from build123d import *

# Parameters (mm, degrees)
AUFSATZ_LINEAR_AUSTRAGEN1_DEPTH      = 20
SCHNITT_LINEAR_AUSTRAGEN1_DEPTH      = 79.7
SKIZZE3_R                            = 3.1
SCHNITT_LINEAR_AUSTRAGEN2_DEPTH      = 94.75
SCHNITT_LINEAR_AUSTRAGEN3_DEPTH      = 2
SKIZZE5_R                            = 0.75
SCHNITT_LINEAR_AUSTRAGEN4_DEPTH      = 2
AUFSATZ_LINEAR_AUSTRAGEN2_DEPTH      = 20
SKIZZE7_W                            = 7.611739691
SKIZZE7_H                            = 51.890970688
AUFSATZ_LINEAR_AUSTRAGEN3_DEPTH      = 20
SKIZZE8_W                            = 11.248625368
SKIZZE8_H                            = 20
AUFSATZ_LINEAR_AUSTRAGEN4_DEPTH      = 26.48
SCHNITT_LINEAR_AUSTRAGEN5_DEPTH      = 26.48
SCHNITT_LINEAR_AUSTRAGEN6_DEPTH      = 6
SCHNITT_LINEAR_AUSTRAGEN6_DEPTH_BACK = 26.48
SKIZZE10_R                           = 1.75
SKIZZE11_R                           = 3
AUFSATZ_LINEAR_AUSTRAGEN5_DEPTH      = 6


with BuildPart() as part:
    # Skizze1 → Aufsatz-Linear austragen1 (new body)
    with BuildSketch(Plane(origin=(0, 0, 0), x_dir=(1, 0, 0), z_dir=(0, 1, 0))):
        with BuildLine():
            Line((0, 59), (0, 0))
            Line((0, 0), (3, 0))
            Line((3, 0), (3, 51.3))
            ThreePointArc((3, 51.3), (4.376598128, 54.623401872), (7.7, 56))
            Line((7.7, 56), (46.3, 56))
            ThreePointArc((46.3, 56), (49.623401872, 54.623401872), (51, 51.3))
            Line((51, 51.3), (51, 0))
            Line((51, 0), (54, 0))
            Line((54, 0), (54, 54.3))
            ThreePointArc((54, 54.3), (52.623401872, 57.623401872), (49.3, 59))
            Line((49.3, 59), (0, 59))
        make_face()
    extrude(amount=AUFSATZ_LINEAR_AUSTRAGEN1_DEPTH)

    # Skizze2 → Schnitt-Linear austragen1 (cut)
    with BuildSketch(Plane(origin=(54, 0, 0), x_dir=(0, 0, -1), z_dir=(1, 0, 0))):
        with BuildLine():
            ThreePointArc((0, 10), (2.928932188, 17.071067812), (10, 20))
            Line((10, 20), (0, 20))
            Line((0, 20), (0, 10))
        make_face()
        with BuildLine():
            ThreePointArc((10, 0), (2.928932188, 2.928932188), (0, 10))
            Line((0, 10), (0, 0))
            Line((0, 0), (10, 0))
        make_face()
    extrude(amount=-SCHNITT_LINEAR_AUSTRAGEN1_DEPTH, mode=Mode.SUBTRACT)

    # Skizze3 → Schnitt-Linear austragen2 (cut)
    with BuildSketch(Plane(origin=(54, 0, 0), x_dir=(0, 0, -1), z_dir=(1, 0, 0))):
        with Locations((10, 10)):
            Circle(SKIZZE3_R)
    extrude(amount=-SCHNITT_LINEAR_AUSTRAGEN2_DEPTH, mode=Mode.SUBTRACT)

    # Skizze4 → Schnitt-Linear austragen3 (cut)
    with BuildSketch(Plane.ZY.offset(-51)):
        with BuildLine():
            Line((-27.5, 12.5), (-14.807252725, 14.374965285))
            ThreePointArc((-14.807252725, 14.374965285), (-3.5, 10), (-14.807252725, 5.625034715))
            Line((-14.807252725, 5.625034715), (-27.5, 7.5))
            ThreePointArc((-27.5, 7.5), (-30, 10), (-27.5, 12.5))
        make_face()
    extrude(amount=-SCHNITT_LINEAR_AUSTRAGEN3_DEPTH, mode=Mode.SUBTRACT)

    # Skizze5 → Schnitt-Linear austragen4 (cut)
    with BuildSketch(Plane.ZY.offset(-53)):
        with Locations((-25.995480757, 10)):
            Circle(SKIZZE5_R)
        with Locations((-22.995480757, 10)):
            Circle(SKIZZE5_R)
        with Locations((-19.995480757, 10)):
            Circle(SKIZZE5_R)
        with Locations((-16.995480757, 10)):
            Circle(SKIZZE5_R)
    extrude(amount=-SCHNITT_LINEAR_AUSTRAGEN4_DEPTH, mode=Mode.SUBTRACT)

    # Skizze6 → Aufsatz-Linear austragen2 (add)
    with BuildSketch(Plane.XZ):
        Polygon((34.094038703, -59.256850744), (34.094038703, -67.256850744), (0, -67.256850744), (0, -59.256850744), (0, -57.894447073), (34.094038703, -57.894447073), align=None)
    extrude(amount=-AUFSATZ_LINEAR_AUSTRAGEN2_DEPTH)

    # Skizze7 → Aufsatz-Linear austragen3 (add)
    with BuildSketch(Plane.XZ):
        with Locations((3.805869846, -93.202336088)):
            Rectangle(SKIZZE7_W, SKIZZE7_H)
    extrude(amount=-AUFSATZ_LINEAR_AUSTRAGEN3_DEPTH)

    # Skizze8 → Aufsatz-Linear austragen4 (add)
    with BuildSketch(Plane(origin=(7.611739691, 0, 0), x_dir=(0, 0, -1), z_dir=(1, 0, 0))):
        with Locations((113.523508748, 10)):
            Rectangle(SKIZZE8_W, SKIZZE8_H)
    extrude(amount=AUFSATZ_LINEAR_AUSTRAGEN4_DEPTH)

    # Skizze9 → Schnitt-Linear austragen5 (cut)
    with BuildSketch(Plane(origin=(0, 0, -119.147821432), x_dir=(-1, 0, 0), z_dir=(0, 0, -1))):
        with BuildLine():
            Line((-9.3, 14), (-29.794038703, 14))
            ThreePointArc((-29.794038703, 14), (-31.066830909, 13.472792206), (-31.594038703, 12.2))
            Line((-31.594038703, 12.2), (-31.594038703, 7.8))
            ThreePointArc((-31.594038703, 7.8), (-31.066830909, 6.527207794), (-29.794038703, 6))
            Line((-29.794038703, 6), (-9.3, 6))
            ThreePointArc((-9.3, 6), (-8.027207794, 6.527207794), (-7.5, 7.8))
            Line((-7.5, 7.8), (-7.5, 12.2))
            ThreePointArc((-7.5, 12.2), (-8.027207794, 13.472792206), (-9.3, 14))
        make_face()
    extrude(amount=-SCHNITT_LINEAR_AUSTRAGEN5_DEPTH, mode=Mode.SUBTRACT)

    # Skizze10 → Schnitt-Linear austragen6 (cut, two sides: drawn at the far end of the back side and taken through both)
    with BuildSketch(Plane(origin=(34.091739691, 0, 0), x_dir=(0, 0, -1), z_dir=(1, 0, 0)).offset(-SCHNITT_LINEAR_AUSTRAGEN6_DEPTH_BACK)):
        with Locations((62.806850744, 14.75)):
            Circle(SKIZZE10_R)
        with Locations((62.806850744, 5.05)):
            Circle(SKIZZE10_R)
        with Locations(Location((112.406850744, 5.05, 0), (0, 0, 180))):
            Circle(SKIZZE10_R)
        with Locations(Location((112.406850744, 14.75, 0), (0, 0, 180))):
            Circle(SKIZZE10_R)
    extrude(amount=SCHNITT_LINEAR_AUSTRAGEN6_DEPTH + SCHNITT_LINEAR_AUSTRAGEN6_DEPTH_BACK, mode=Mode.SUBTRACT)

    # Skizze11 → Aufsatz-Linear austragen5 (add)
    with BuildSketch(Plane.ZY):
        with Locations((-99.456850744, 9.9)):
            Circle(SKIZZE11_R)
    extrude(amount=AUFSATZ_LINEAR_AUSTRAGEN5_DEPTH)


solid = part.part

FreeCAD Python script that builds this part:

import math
import FreeCAD as App
import Part
import Sketcher

V = App.Vector
Q = App.Units.Quantity


def add_polygon(sketch, points):
    """Adds a closed chain of lines whose ends are joined by coincident constraints."""
    first, n = sketch.GeometryCount, len(points)
    for a, b in zip(points, points[1:] + points[:1]):
        sketch.addGeometry(Part.LineSegment(App.Vector(*a, 0), App.Vector(*b, 0)), False)
    for i in range(n):
        sketch.addConstraint(Sketcher.Constraint("Coincident", first + i, 2, first + (i + 1) % n, 1))

doc = App.newDocument("Part")
body = doc.addObject("PartDesign::Body", "Body")

# Sketch on XZ plane
sketch1 = body.newObject("Sketcher::SketchObject", "Sketch")
sketch1.AttachmentSupport = (doc.getObject("XZ_Plane"), [""])
sketch1.MapMode = "FlatFace"
sketch1.addGeometry(Part.LineSegment(V(0, -59, 0), V(0, 0, 0)), False)
sketch1.addGeometry(Part.LineSegment(V(0, 0, 0), V(3, 0, 0)), False)
sketch1.addGeometry(Part.LineSegment(V(3, 0, 0), V(3, -51.3, 0)), False)
sketch1.addGeometry(Part.ArcOfCircle(Part.Circle(V(7.7, -51.3, 0), V(0, 0, 1), 4.7), math.radians(180), math.radians(270)), False)
sketch1.addGeometry(Part.LineSegment(V(7.7, -56, 0), V(46.3, -56, 0)), False)
sketch1.addGeometry(Part.ArcOfCircle(Part.Circle(V(46.3, -51.3, 0), V(0, 0, 1), 4.7), math.radians(-90), math.radians(0)), False)
sketch1.addGeometry(Part.LineSegment(V(51, -51.3, 0), V(51, 0, 0)), False)
sketch1.addGeometry(Part.LineSegment(V(51, 0, 0), V(54, 0, 0)), False)
sketch1.addGeometry(Part.LineSegment(V(54, 0, 0), V(54, -54.3, 0)), False)
sketch1.addGeometry(Part.ArcOfCircle(Part.Circle(V(49.3, -54.3, 0), V(0, 0, 1), 4.7), math.radians(-90), math.radians(0)), False)
sketch1.addGeometry(Part.LineSegment(V(49.3, -59, 0), V(0, -59, 0)), False)
sketch1.addConstraint(Sketcher.Constraint("Coincident", 0, 2, 1, 1))
sketch1.addConstraint(Sketcher.Constraint("Coincident", 1, 2, 2, 1))
sketch1.addConstraint(Sketcher.Constraint("Tangent", 2, 2, 3, 1))
sketch1.addConstraint(Sketcher.Constraint("Tangent", 3, 2, 4, 1))
sketch1.addConstraint(Sketcher.Constraint("Tangent", 4, 2, 5, 1))
sketch1.addConstraint(Sketcher.Constraint("Tangent", 5, 2, 6, 1))
sketch1.addConstraint(Sketcher.Constraint("Coincident", 6, 2, 7, 1))
sketch1.addConstraint(Sketcher.Constraint("Coincident", 7, 2, 8, 1))
sketch1.addConstraint(Sketcher.Constraint("Tangent", 8, 2, 9, 2))
sketch1.addConstraint(Sketcher.Constraint("Tangent", 9, 1, 10, 1))
sketch1.addConstraint(Sketcher.Constraint("Coincident", 10, 2, 0, 1))
sketch1.addConstraint(Sketcher.Constraint("Vertical", 0))
sketch1.addConstraint(Sketcher.Constraint("Horizontal", 1))
sketch1.addConstraint(Sketcher.Constraint("Vertical", 2))
sketch1.addConstraint(Sketcher.Constraint("Horizontal", 4))
sketch1.addConstraint(Sketcher.Constraint("Vertical", 6))
sketch1.addConstraint(Sketcher.Constraint("Horizontal", 7))
sketch1.addConstraint(Sketcher.Constraint("Vertical", 8))
sketch1.addConstraint(Sketcher.Constraint("Horizontal", 10))
sketch1.addConstraint(Sketcher.Constraint("Coincident", 0, 2, -1, 1))
sketch1.addConstraint(Sketcher.Constraint("Equal", 3, 5))
sketch1.addConstraint(Sketcher.Constraint("Equal", 5, 9))
sketch1.addConstraint(Sketcher.Constraint("PointOnObject", 6, 2, -1))
sketch1.addConstraint(Sketcher.Constraint("Equal", 1, 7))
sketch1.addConstraint(Sketcher.Constraint("Radius", 3, Q("4.7 mm")))
sketch1.addConstraint(Sketcher.Constraint("DistanceX", 1, 1, 1, 2, Q("3 mm")))
sketch1.addConstraint(Sketcher.Constraint("DistanceY", 0, 1, 0, 2, Q("59 mm")))
sketch1.addConstraint(Sketcher.Constraint("DistanceX", 4, 1, 4, 2, Q("38.6 mm")))
sketch1.addConstraint(Sketcher.Constraint("DistanceY", 2, 2, 2, 1, Q("51.3 mm")))
pad1 = body.newObject("PartDesign::Pad", "Pad")
pad1.Profile = sketch1
pad1.Length = 20
pad1.Reversed = True

# Sketch on YZ plane
sketch2 = body.newObject("Sketcher::SketchObject", "Sketch001")
sketch2.AttachmentSupport = (doc.getObject("YZ_Plane"), [""])
sketch2.MapMode = "FlatFace"
sketch2.AttachmentOffset = App.Placement(V(0, 0, 54), App.Rotation())
sketch2.addGeometry(Part.ArcOfCircle(Part.Circle(V(10, -10, 0), V(0, 0, 1), 10), math.radians(0), math.radians(90)), False)
sketch2.addGeometry(Part.LineSegment(V(20, -10, 0), V(20, 0, 0)), False)
sketch2.addGeometry(Part.LineSegment(V(20, 0, 0), V(10, 0, 0)), False)
sketch2.addGeometry(Part.ArcOfCircle(Part.Circle(V(10, -10, 0), V(0, 0, 1), 10), math.radians(90), math.radians(180)), False)
sketch2.addGeometry(Part.LineSegment(V(10, 0, 0), V(0, 0, 0)), False)
sketch2.addGeometry(Part.LineSegment(V(0, 0, 0), V(0, -10, 0)), False)
sketch2.addConstraint(Sketcher.Constraint("Tangent", 0, 1, 1, 1))
sketch2.addConstraint(Sketcher.Constraint("Coincident", 1, 2, 2, 1))
sketch2.addConstraint(Sketcher.Constraint("Tangent", 2, 2, 0, 2))
sketch2.addConstraint(Sketcher.Constraint("Tangent", 3, 1, 4, 1))
sketch2.addConstraint(Sketcher.Constraint("Coincident", 4, 2, 5, 1))
sketch2.addConstraint(Sketcher.Constraint("Tangent", 5, 2, 3, 2))
sketch2.addConstraint(Sketcher.Constraint("Vertical", 1))
sketch2.addConstraint(Sketcher.Constraint("Horizontal", 2))
sketch2.addConstraint(Sketcher.Constraint("Horizontal", 4))
sketch2.addConstraint(Sketcher.Constraint("Vertical", 5))
sketch2.addConstraint(Sketcher.Constraint("Coincident", 4, 2, -1, 1))
sketch2.addConstraint(Sketcher.Constraint("Coincident", 3, 3, 0, 3))
sketch2.addConstraint(Sketcher.Constraint("Equal", 0, 3))
sketch2.addConstraint(Sketcher.Constraint("Radius", 0, Q("10 mm")))
pocket1 = body.newObject("PartDesign::Pocket", "Pocket")
pocket1.Profile = sketch2
pocket1.Length = 79.7

# Sketch on YZ plane
sketch3 = body.newObject("Sketcher::SketchObject", "Sketch002")
sketch3.AttachmentSupport = (doc.getObject("YZ_Plane"), [""])
sketch3.MapMode = "FlatFace"
sketch3.AttachmentOffset = App.Placement(V(0, 0, 54), App.Rotation())
sketch3.addGeometry(Part.Circle(V(10, -10, 0), V(0, 0, 1), 3.1), False)
sketch3.addConstraint(Sketcher.Constraint("Diameter", 0, Q("6.2 mm")))
sketch3.addConstraint(Sketcher.Constraint("DistanceX", -1, 1, 0, 3, Q("10 mm")))
sketch3.addConstraint(Sketcher.Constraint("DistanceY", 0, 3, -1, 1, Q("10 mm")))
pocket2 = body.newObject("PartDesign::Pocket", "Pocket001")
pocket2.Profile = sketch3
pocket2.Length = 94.75

# Sketch on YZ plane
sketch4 = body.newObject("Sketcher::SketchObject", "Sketch003")
sketch4.AttachmentSupport = (doc.getObject("YZ_Plane"), [""])
sketch4.MapMode = "FlatFace"
sketch4.AttachmentOffset = App.Placement(V(0, 0, 51), App.Rotation())
sketch4.addGeometry(Part.LineSegment(V(14.374965, -14.807253, 0), V(12.5, -27.5, 0)), False)
sketch4.addGeometry(Part.ArcOfCircle(Part.Circle(V(10, -27.5, 0), V(0, 0, 1), 2.5), math.radians(180), math.radians(360)), False)
sketch4.addGeometry(Part.LineSegment(V(7.5, -27.5, 0), V(5.625035, -14.807253, 0)), False)
sketch4.addGeometry(Part.ArcOfCircle(Part.Circle(V(10, -10, 0), V(0, 0, 1), 6.5), math.radians(-47.695424), math.radians(227.695424)), False)
sketch4.addConstraint(Sketcher.Constraint("Coincident", 0, 2, 1, 2))
sketch4.addConstraint(Sketcher.Constraint("Coincident", 1, 1, 2, 1))
sketch4.addConstraint(Sketcher.Constraint("Coincident", 2, 2, 3, 2))
sketch4.addConstraint(Sketcher.Constraint("Coincident", 3, 1, 0, 1))
sketch4.addConstraint(Sketcher.Constraint("Horizontal", 1, 3, 0, 2))
sketch4.addConstraint(Sketcher.Constraint("Horizontal", 0, 2, 1, 1))
sketch4.addConstraint(Sketcher.Constraint("Horizontal", 2, 2, 3, 1))
sketch4.addConstraint(Sketcher.Constraint("Vertical", 1, 3, 3, 3))
sketch4.addConstraint(Sketcher.Constraint("Radius", 1, Q("2.5 mm")))
sketch4.addConstraint(Sketcher.Constraint("Radius", 3, Q("6.5 mm")))
sketch4.addConstraint(Sketcher.Constraint("DistanceX", -1, 1, 1, 3, Q("10 mm")))
sketch4.addConstraint(Sketcher.Constraint("DistanceY", 3, 3, -1, 1, Q("10 mm")))
sketch4.addConstraint(Sketcher.Constraint("DistanceY", 1, 3, -1, 1, Q("27.5 mm")))
sketch4.addConstraint(Sketcher.Constraint("DistanceX", 2, 2, 3, 1, Q("8.749931 mm")))
pocket3 = body.newObject("PartDesign::Pocket", "Pocket002")
pocket3.Profile = sketch4
pocket3.Length = 2
pocket3.Reversed = True

# Sketch on YZ plane
sketch5 = body.newObject("Sketcher::SketchObject", "Sketch004")
sketch5.AttachmentSupport = (doc.getObject("YZ_Plane"), [""])
sketch5.MapMode = "FlatFace"
sketch5.AttachmentOffset = App.Placement(V(0, 0, 53), App.Rotation())
sketch5.addGeometry(Part.Circle(V(10, -25.995481, 0), V(0, 0, 1), 0.75), False)
sketch5.addGeometry(Part.Circle(V(10, -22.995481, 0), V(0, 0, 1), 0.75), False)
sketch5.addGeometry(Part.Circle(V(10, -19.995481, 0), V(0, 0, 1), 0.75), False)
sketch5.addGeometry(Part.Circle(V(10, -16.995481, 0), V(0, 0, 1), 0.75), False)
sketch5.addConstraint(Sketcher.Constraint("Equal", 0, 1))
sketch5.addConstraint(Sketcher.Constraint("Equal", 1, 2))
sketch5.addConstraint(Sketcher.Constraint("Equal", 2, 3))
sketch5.addConstraint(Sketcher.Constraint("Vertical", 0, 3, 1, 3))
sketch5.addConstraint(Sketcher.Constraint("Vertical", 1, 3, 2, 3))
sketch5.addConstraint(Sketcher.Constraint("Vertical", 2, 3, 3, 3))
sketch5.addConstraint(Sketcher.Constraint("Diameter", 0, Q("1.5 mm")))
sketch5.addConstraint(Sketcher.Constraint("DistanceX", -1, 1, 0, 3, Q("10 mm")))
sketch5.addConstraint(Sketcher.Constraint("DistanceY", 0, 3, 1, 3, Q("3 mm")))
sketch5.addConstraint(Sketcher.Constraint("DistanceY", 1, 3, 2, 3, Q("3 mm")))
sketch5.addConstraint(Sketcher.Constraint("DistanceY", 2, 3, 3, 3, Q("3 mm")))
sketch5.addConstraint(Sketcher.Constraint("DistanceY", 0, 3, -1, 1, Q("25.995481 mm")))
pocket4 = body.newObject("PartDesign::Pocket", "Pocket003")
pocket4.Profile = sketch5
pocket4.Length = 2
pocket4.Reversed = True

# Sketch on XZ plane
sketch6 = body.newObject("Sketcher::SketchObject", "Sketch005")
sketch6.AttachmentSupport = (doc.getObject("XZ_Plane"), [""])
sketch6.MapMode = "FlatFace"
add_polygon(sketch6, [(34.094039, -67.256851), (34.094039, -57.894447), (0, -57.894447), (0, -67.256851)])  # lines 0-3
sketch6.addConstraint(Sketcher.Constraint("Vertical", 0))
sketch6.addConstraint(Sketcher.Constraint("Horizontal", 1))
sketch6.addConstraint(Sketcher.Constraint("Vertical", 2))
sketch6.addConstraint(Sketcher.Constraint("Horizontal", 3))
sketch6.addConstraint(Sketcher.Constraint("PointOnObject", 1, 2, -2))
sketch6.addConstraint(Sketcher.Constraint("DistanceX", 1, 2, 1, 1, Q("34.094039 mm")))
sketch6.addConstraint(Sketcher.Constraint("DistanceY", 0, 1, 0, 2, Q("9.362404 mm")))
sketch6.addConstraint(Sketcher.Constraint("DistanceY", 2, 2, -1, 1, Q("67.256851 mm")))
pad2 = body.newObject("PartDesign::Pad", "Pad001")
pad2.Profile = sketch6
pad2.Length = 20
pad2.Reversed = True

# Sketch on XZ plane
sketch7 = body.newObject("Sketcher::SketchObject", "Sketch006")
sketch7.AttachmentSupport = (doc.getObject("XZ_Plane"), [""])
sketch7.MapMode = "FlatFace"
add_polygon(sketch7, [(0, -67.256851), (0, -119.147821), (7.61174, -119.147821), (7.61174, -67.256851)])  # lines 0-3
sketch7.addConstraint(Sketcher.Constraint("Vertical", 0))
sketch7.addConstraint(Sketcher.Constraint("Horizontal", 1))
sketch7.addConstraint(Sketcher.Constraint("Vertical", 2))
sketch7.addConstraint(Sketcher.Constraint("Horizontal", 3))
sketch7.addConstraint(Sketcher.Constraint("PointOnObject", 0, 2, -2))
sketch7.addConstraint(Sketcher.Constraint("DistanceX", 1, 1, 1, 2, Q("7.61174 mm")))
sketch7.addConstraint(Sketcher.Constraint("DistanceY", 0, 2, 0, 1, Q("51.890971 mm")))
sketch7.addConstraint(Sketcher.Constraint("DistanceY", 0, 2, -1, 1, Q("119.147821 mm")))
pad3 = body.newObject("PartDesign::Pad", "Pad002")
pad3.Profile = sketch7
pad3.Length = 20
pad3.Reversed = True

# Sketch on YZ plane
sketch8 = body.newObject("Sketcher::SketchObject", "Sketch007")
sketch8.AttachmentSupport = (doc.getObject("YZ_Plane"), [""])
sketch8.MapMode = "FlatFace"
sketch8.AttachmentOffset = App.Placement(V(0, 0, 7.61174), App.Rotation())
add_polygon(sketch8, [(20, -107.899196), (0, -107.899196), (0, -119.147821), (20, -119.147821)])  # lines 0-3
sketch8.addConstraint(Sketcher.Constraint("Horizontal", 0))
sketch8.addConstraint(Sketcher.Constraint("Vertical", 1))
sketch8.addConstraint(Sketcher.Constraint("Horizontal", 2))
sketch8.addConstraint(Sketcher.Constraint("Vertical", 3))
sketch8.addConstraint(Sketcher.Constraint("PointOnObject", 0, 2, -2))
sketch8.addConstraint(Sketcher.Constraint("DistanceX", 0, 2, 0, 1, Q("20 mm")))
sketch8.addConstraint(Sketcher.Constraint("DistanceY", 1, 2, 1, 1, Q("11.248625 mm")))
sketch8.addConstraint(Sketcher.Constraint("DistanceY", 1, 2, -1, 1, Q("119.147821 mm")))
pad4 = body.newObject("PartDesign::Pad", "Pad003")
pad4.Profile = sketch8
pad4.Length = 26.48

# Sketch on XY plane
sketch9 = body.newObject("Sketcher::SketchObject", "Sketch008")
sketch9.AttachmentSupport = (doc.getObject("XY_Plane"), [""])
sketch9.MapMode = "FlatFace"
sketch9.AttachmentOffset = App.Placement(V(0, 0, -119.147821), App.Rotation())
sketch9.addGeometry(Part.LineSegment(V(9.3, 14, 0), V(29.794039, 14, 0)), False)
sketch9.addGeometry(Part.ArcOfCircle(Part.Circle(V(29.794039, 12.2, 0), V(0, 0, 1), 1.8), math.radians(0), math.radians(90)), False)
sketch9.addGeometry(Part.LineSegment(V(31.594039, 12.2, 0), V(31.594039, 7.8, 0)), False)
sketch9.addGeometry(Part.ArcOfCircle(Part.Circle(V(29.794039, 7.8, 0), V(0, 0, 1), 1.8), math.radians(-90), math.radians(0)), False)
sketch9.addGeometry(Part.LineSegment(V(29.794039, 6, 0), V(9.3, 6, 0)), False)
sketch9.addGeometry(Part.ArcOfCircle(Part.Circle(V(9.3, 7.8, 0), V(0, 0, 1), 1.8), math.radians(180), math.radians(270)), False)
sketch9.addGeometry(Part.LineSegment(V(7.5, 7.8, 0), V(7.5, 12.2, 0)), False)
sketch9.addGeometry(Part.ArcOfCircle(Part.Circle(V(9.3, 12.2, 0), V(0, 0, 1), 1.8), math.radians(90), math.radians(180)), False)
sketch9.addConstraint(Sketcher.Constraint("Tangent", 0, 2, 1, 2))
sketch9.addConstraint(Sketcher.Constraint("Tangent", 1, 1, 2, 1))
sketch9.addConstraint(Sketcher.Constraint("Tangent", 2, 2, 3, 2))
sketch9.addConstraint(Sketcher.Constraint("Tangent", 3, 1, 4, 1))
sketch9.addConstraint(Sketcher.Constraint("Tangent", 4, 2, 5, 2))
sketch9.addConstraint(Sketcher.Constraint("Tangent", 5, 1, 6, 1))
sketch9.addConstraint(Sketcher.Constraint("Tangent", 6, 2, 7, 2))
sketch9.addConstraint(Sketcher.Constraint("Tangent", 7, 1, 0, 1))
sketch9.addConstraint(Sketcher.Constraint("Horizontal", 0))
sketch9.addConstraint(Sketcher.Constraint("Vertical", 2))
sketch9.addConstraint(Sketcher.Constraint("Horizontal", 4))
sketch9.addConstraint(Sketcher.Constraint("Vertical", 6))
sketch9.addConstraint(Sketcher.Constraint("Equal", 1, 3))
sketch9.addConstraint(Sketcher.Constraint("Equal", 3, 5))
sketch9.addConstraint(Sketcher.Constraint("Equal", 5, 7))
sketch9.addConstraint(Sketcher.Constraint("Radius", 1, Q("1.8 mm")))
sketch9.addConstraint(Sketcher.Constraint("DistanceY", 2, 2, 2, 1, Q("4.4 mm")))
sketch9.addConstraint(Sketcher.Constraint("DistanceY", -1, 1, 0, 2, Q("14 mm")))
sketch9.addConstraint(Sketcher.Constraint("DistanceX", -1, 1, 5, 3, Q("9.3 mm")))
sketch9.addConstraint(Sketcher.Constraint("DistanceX", 0, 1, 0, 2, Q("20.494039 mm")))
pocket5 = body.newObject("PartDesign::Pocket", "Pocket004")
pocket5.Profile = sketch9
pocket5.Length = 26.48
pocket5.Reversed = True

# Sketch on YZ plane
sketch10 = body.newObject("Sketcher::SketchObject", "Sketch009")
sketch10.AttachmentSupport = (doc.getObject("YZ_Plane"), [""])
sketch10.MapMode = "FlatFace"
sketch10.AttachmentOffset = App.Placement(V(0, 0, 34.09174), App.Rotation())
sketch10.addGeometry(Part.Circle(V(14.75, -62.806851, 0), V(0, 0, 1), 1.75), False)
sketch10.addGeometry(Part.Circle(V(5.05, -62.806851, 0), V(0, 0, 1), 1.75), False)
sketch10.addGeometry(Part.Circle(V(5.05, -112.406851, 0), V(0, 0, 1), 1.75), False)
sketch10.addGeometry(Part.Circle(V(14.75, -112.406851, 0), V(0, 0, 1), 1.75), False)
sketch10.addConstraint(Sketcher.Constraint("Equal", 0, 1))
sketch10.addConstraint(Sketcher.Constraint("Equal", 1, 2))
sketch10.addConstraint(Sketcher.Constraint("Equal", 2, 3))
sketch10.addConstraint(Sketcher.Constraint("Horizontal", 0, 3, 1, 3))
sketch10.addConstraint(Sketcher.Constraint("Horizontal", 2, 3, 3, 3))
sketch10.addConstraint(Sketcher.Constraint("Vertical", 1, 3, 2, 3))
sketch10.addConstraint(Sketcher.Constraint("Vertical", 0, 3, 3, 3))
sketch10.addConstraint(Sketcher.Constraint("Diameter", 0, Q("3.5 mm")))
sketch10.addConstraint(Sketcher.Constraint("DistanceX", 1, 3, 0, 3, Q("9.7 mm")))
sketch10.addConstraint(Sketcher.Constraint("DistanceY", 2, 3, 1, 3, Q("49.6 mm")))
sketch10.addConstraint(Sketcher.Constraint("DistanceX", -1, 1, 0, 3, Q("14.75 mm")))
sketch10.addConstraint(Sketcher.Constraint("DistanceY", 0, 3, -1, 1, Q("62.806851 mm")))
pocket6 = body.newObject("PartDesign::Pocket", "Pocket005")
pocket6.Profile = sketch10
pocket6.Type = "TwoLengths"
pocket6.Length = 6
pocket6.Length2 = 26.48
pocket6.Reversed = True

# Sketch on YZ plane
sketch11 = body.newObject("Sketcher::SketchObject", "Sketch010")
sketch11.AttachmentSupport = (doc.getObject("YZ_Plane"), [""])
sketch11.MapMode = "FlatFace"
sketch11.addGeometry(Part.Circle(V(9.9, -99.456851, 0), V(0, 0, 1), 3), False)
sketch11.addConstraint(Sketcher.Constraint("Diameter", 0, Q("6 mm")))
sketch11.addConstraint(Sketcher.Constraint("DistanceX", -1, 1, 0, 3, Q("9.9 mm")))
sketch11.addConstraint(Sketcher.Constraint("DistanceY", 0, 3, -1, 1, Q("99.456851 mm")))
pad5 = body.newObject("PartDesign::Pad", "Pad004")
pad5.Profile = sketch11
pad5.Length = 6
pad5.Reversed = True

doc.recompute()
